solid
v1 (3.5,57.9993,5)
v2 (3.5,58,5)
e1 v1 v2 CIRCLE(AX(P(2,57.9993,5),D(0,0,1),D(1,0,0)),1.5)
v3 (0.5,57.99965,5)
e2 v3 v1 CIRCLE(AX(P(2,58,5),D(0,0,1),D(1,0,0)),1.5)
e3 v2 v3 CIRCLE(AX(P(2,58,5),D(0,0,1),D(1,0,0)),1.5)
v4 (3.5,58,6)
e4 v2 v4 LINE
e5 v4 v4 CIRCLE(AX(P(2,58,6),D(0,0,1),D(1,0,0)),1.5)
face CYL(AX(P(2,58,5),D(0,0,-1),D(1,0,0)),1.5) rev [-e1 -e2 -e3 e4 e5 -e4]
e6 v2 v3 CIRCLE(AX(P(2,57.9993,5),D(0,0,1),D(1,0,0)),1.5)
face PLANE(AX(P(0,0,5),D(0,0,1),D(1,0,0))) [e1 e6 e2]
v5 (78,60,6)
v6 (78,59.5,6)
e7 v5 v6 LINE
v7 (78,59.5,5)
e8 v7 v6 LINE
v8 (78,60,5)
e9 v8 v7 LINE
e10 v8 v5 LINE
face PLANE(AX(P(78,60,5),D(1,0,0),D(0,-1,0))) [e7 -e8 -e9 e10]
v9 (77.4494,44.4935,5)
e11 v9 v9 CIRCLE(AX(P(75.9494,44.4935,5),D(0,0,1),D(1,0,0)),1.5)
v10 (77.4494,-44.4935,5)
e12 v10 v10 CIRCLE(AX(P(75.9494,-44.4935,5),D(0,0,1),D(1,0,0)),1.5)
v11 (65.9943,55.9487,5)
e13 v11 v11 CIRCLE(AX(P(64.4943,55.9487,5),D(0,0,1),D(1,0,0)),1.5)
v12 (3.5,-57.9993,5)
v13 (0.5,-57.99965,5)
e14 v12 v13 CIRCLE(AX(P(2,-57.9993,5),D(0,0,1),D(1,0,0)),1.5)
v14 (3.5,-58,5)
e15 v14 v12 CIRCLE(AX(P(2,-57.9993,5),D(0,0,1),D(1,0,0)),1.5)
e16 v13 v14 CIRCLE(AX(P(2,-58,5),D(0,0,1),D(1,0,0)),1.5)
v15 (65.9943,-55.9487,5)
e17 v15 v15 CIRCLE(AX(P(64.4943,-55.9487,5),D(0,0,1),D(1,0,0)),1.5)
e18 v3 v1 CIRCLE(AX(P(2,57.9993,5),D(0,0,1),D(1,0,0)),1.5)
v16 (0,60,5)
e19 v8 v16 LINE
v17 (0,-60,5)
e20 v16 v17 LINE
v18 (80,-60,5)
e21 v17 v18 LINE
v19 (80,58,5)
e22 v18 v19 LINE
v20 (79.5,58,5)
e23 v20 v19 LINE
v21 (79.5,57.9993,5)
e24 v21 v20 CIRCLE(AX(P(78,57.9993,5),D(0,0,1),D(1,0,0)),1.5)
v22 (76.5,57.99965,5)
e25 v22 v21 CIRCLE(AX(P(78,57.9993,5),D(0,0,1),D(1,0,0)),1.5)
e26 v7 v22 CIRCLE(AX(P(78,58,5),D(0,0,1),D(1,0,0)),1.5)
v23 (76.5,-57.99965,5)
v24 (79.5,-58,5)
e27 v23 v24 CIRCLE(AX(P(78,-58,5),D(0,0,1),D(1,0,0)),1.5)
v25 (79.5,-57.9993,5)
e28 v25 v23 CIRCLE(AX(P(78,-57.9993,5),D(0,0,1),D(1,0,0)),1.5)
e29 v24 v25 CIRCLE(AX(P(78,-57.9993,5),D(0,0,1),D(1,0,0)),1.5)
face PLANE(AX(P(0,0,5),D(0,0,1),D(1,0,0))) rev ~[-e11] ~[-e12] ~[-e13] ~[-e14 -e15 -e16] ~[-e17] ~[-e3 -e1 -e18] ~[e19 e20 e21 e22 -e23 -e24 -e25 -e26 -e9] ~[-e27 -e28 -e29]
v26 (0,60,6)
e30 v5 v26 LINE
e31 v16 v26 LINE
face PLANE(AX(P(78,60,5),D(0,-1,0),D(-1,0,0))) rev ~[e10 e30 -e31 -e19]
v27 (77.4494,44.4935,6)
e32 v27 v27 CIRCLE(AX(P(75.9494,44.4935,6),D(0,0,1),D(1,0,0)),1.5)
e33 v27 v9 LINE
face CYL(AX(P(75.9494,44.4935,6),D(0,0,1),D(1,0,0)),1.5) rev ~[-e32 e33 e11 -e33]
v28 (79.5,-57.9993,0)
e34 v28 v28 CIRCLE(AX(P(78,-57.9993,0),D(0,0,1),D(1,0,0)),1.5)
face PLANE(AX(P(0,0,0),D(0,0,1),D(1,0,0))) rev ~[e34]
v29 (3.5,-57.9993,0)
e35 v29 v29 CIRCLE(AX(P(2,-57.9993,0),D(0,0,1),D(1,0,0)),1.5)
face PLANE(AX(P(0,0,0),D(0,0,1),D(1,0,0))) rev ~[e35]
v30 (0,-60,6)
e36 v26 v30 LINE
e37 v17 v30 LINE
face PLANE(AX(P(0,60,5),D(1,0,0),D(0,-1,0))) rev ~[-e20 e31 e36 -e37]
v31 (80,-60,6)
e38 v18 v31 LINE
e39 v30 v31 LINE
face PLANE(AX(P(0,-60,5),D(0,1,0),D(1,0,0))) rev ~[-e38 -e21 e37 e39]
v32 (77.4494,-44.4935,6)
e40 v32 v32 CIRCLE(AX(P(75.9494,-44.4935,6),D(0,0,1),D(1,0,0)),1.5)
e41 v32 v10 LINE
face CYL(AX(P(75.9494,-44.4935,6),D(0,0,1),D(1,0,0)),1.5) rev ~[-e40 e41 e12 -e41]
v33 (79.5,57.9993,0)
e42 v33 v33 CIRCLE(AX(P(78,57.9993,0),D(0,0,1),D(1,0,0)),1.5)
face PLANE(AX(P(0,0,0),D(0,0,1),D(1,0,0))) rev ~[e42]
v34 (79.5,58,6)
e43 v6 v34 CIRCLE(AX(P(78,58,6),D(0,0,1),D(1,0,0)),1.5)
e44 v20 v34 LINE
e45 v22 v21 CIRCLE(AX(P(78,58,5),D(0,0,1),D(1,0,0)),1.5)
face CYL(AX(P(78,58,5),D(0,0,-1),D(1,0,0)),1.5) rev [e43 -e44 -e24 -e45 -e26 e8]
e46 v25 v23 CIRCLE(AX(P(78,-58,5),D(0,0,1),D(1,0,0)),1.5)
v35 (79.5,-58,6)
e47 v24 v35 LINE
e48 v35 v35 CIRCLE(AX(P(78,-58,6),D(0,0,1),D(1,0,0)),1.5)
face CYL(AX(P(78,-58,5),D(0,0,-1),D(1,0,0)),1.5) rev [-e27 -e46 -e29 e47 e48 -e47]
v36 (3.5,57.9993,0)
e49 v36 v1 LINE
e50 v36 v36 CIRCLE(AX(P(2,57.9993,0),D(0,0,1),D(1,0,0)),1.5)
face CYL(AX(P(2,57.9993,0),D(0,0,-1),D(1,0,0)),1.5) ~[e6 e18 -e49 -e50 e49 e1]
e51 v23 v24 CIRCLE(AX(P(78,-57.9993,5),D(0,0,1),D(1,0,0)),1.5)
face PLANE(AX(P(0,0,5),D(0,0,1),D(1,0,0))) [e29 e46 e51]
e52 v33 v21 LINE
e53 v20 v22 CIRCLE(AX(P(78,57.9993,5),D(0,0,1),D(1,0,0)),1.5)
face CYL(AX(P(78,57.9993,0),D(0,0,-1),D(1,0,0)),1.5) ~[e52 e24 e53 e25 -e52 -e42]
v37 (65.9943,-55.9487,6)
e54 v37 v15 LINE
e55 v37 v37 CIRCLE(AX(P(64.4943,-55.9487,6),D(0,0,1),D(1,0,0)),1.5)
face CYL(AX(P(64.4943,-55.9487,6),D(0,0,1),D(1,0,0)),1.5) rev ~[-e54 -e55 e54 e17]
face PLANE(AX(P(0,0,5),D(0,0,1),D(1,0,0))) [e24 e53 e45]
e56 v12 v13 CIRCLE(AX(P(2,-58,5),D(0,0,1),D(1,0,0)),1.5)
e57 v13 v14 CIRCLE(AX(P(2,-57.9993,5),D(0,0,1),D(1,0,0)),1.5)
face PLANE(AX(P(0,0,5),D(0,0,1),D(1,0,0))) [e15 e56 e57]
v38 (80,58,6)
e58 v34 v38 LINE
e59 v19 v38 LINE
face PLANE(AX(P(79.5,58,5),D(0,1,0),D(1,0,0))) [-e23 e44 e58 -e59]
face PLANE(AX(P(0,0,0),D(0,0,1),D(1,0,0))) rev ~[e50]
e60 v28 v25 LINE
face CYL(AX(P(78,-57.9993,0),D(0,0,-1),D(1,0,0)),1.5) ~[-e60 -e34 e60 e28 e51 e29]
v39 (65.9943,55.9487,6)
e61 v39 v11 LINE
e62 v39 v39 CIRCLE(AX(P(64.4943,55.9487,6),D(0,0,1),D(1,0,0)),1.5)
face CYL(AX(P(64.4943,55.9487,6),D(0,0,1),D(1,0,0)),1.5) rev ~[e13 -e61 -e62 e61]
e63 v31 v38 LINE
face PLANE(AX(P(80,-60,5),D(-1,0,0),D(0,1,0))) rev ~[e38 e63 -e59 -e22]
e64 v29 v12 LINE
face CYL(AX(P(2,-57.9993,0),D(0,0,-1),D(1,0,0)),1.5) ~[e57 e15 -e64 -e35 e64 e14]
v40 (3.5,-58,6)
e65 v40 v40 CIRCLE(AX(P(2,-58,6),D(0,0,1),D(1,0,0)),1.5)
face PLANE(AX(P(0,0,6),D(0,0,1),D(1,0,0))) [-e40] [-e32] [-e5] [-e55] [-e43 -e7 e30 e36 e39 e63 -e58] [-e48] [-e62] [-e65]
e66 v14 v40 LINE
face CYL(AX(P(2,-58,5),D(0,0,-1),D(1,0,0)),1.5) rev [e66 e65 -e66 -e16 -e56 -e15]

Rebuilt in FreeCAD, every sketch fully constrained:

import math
import FreeCAD as App
import Part
import Sketcher
Q = App.Units.Quantity

doc = App.newDocument("Part")
body = doc.addObject("PartDesign::Body", "Body")
body.AllowCompound = True

# Sketch on XY plane
sketch1 = body.newObject("Sketcher::SketchObject", "Sketch")
sketch1.AttachmentSupport = (doc.getObject("XY_Plane"), [""])
sketch1.MapMode = "FlatFace"
sketch1.addGeometry(Part.Circle(App.Vector(78, 57.9993, 0), App.Vector(0, 0, 1), 1.5), False)
sketch1.addGeometry(Part.Circle(App.Vector(78, -57.9993, 0), App.Vector(0, 0, 1), 1.5), False)
sketch1.addGeometry(Part.Circle(App.Vector(2, 57.9993, 0), App.Vector(0, 0, 1), 1.5), False)
sketch1.addGeometry(Part.Circle(App.Vector(2, -57.9993, 0), App.Vector(0, 0, 1), 1.5), False)
sketch1.addConstraint(Sketcher.Constraint("Equal", 0, 1))
sketch1.addConstraint(Sketcher.Constraint("Equal", 1, 2))
sketch1.addConstraint(Sketcher.Constraint("Equal", 2, 3))
sketch1.addConstraint(Sketcher.Constraint("Symmetric", 0, 3, 1, 3, -1))
sketch1.addConstraint(Sketcher.Constraint("Symmetric", 2, 3, 3, 3, -1))
sketch1.addConstraint(Sketcher.Constraint("Horizontal", 0, 3, 2, 3))
sketch1.addConstraint(Sketcher.Constraint("Diameter", 0, Q("3 mm")))
sketch1.addConstraint(Sketcher.Constraint("DistanceX", -1, 1, 0, 3, Q("78 mm")))
sketch1.addConstraint(Sketcher.Constraint("DistanceX", -1, 1, 2, 3, Q("2 mm")))
sketch1.addConstraint(Sketcher.Constraint("DistanceY", -1, 1, 0, 3, Q("57.9993 mm")))
pad1 = body.newObject("PartDesign::Pad", "Pad")
pad1.Profile = sketch1
pad1.Length = 5

# Sketch on XY plane
sketch2 = body.newObject("Sketcher::SketchObject", "Sketch001")
sketch2.AttachmentSupport = (doc.getObject("XY_Plane"), [""])
sketch2.MapMode = "FlatFace"
sketch2.AttachmentOffset = App.Placement(App.Vector(0, 0, 5), App.Rotation())
sketch2.addGeometry(Part.LineSegment(App.Vector(78, 59.5, 0), App.Vector(78, 60, 0)), False)
sketch2.addGeometry(Part.LineSegment(App.Vector(78, 60, 0), App.Vector(0, 60, 0)), False)
sketch2.addGeometry(Part.LineSegment(App.Vector(0, 60, 0), App.Vector(0, -60, 0)), False)
sketch2.addGeometry(Part.LineSegment(App.Vector(0, -60, 0), App.Vector(80, -60, 0)), False)
sketch2.addGeometry(Part.LineSegment(App.Vector(80, -60, 0), App.Vector(80, 58, 0)), False)
sketch2.addGeometry(Part.LineSegment(App.Vector(80, 58, 0), App.Vector(79.5, 58, 0)), False)
sketch2.addGeometry(Part.ArcOfCircle(Part.Circle(App.Vector(78, 58, 0), App.Vector(0, 0, 1), 1.5), math.radians(90), math.radians(360)), False)
sketch2.addGeometry(Part.Circle(App.Vector(2, -58, 0), App.Vector(0, 0, 1), 1.5), False)
sketch2.addGeometry(Part.Circle(App.Vector(78, -58, 0), App.Vector(0, 0, 1), 1.5), False)
sketch2.addGeometry(Part.Circle(App.Vector(2, 58, 0), App.Vector(0, 0, 1), 1.5), False)
sketch2.addConstraint(Sketcher.Constraint("Coincident", 0, 2, 1, 1))
sketch2.addConstraint(Sketcher.Constraint("Coincident", 1, 2, 2, 1))
sketch2.addConstraint(Sketcher.Constraint("Coincident", 2, 2, 3, 1))
sketch2.addConstraint(Sketcher.Constraint("Coincident", 3, 2, 4, 1))
sketch2.addConstraint(Sketcher.Constraint("Coincident", 4, 2, 5, 1))
sketch2.addConstraint(Sketcher.Constraint("Coincident", 5, 2, 6, 2))
sketch2.addConstraint(Sketcher.Constraint("Coincident", 6, 1, 0, 1))
sketch2.addConstraint(Sketcher.Constraint("Vertical", 0))
sketch2.addConstraint(Sketcher.Constraint("Horizontal", 1))
sketch2.addConstraint(Sketcher.Constraint("Vertical", 2))
sketch2.addConstraint(Sketcher.Constraint("Horizontal", 3))
sketch2.addConstraint(Sketcher.Constraint("Vertical", 4))
sketch2.addConstraint(Sketcher.Constraint("Horizontal", 5))
sketch2.addConstraint(Sketcher.Constraint("Equal", 6, 7))
sketch2.addConstraint(Sketcher.Constraint("Equal", 7, 8))
sketch2.addConstraint(Sketcher.Constraint("Equal", 8, 9))
sketch2.addConstraint(Sketcher.Constraint("Symmetric", 1, 2, 2, 2, -1, 1))
sketch2.addConstraint(Sketcher.Constraint("Symmetric", 6, 3, 8, 3, -1))
sketch2.addConstraint(Sketcher.Constraint("Symmetric", 7, 3, 9, 3, -1))
sketch2.addConstraint(Sketcher.Constraint("Horizontal", 7, 3, 8, 3))
sketch2.addConstraint(Sketcher.Constraint("Horizontal", 9, 3, 4, 2))
sketch2.addConstraint(Sketcher.Constraint("Vertical", 8, 3, 0, 2))
sketch2.addConstraint(Sketcher.Constraint("Equal", 5, 0))
sketch2.addConstraint(Sketcher.Constraint("Diameter", 7, Q("3 mm")))
sketch2.addConstraint(Sketcher.Constraint("DistanceY", 2, 2, 2, 1, Q("120 mm")))
sketch2.addConstraint(Sketcher.Constraint("DistanceX", -1, 1, 7, 3, Q("2 mm")))
sketch2.addConstraint(Sketcher.Constraint("DistanceY", 6, 3, 0, 2, Q("2 mm")))
sketch2.addConstraint(Sketcher.Constraint("DistanceX", 1, 2, 1, 1, Q("78 mm")))
pad2 = body.newObject("PartDesign::Pad", "Pad001")
pad2.Profile = sketch2
pad2.Length = 1

# Sketch on XY plane
sketch3 = body.newObject("Sketcher::SketchObject", "Sketch002")
sketch3.AttachmentSupport = (doc.getObject("XY_Plane"), [""])
sketch3.MapMode = "FlatFace"
sketch3.AttachmentOffset = App.Placement(App.Vector(0, 0, 6), App.Rotation())
sketch3.addGeometry(Part.Circle(App.Vector(64.4943, 55.9487, 0), App.Vector(0, 0, 1), 1.5), False)
sketch3.addGeometry(Part.Circle(App.Vector(75.9494, 44.4935, 0), App.Vector(0, 0, 1), 1.5), False)
sketch3.addGeometry(Part.Circle(App.Vector(64.4943, -55.9487, 0), App.Vector(0, 0, 1), 1.5), False)
sketch3.addGeometry(Part.Circle(App.Vector(75.9494, -44.4935, 0), App.Vector(0, 0, 1), 1.5), False)
sketch3.addConstraint(Sketcher.Constraint("Equal", 0, 1))
sketch3.addConstraint(Sketcher.Constraint("Equal", 1, 2))
sketch3.addConstraint(Sketcher.Constraint("Equal", 2, 3))
sketch3.addConstraint(Sketcher.Constraint("Symmetric", 0, 3, 2, 3, -1))
sketch3.addConstraint(Sketcher.Constraint("Symmetric", 1, 3, 3, 3, -1))
sketch3.addConstraint(Sketcher.Constraint("Diameter", 0, Q("3 mm")))
sketch3.addConstraint(Sketcher.Constraint("DistanceX", 0, 3, 1, 3, Q("11.455 mm")))
sketch3.addConstraint(Sketcher.Constraint("DistanceY", 3, 3, 1, 3, Q("88.987 mm")))
sketch3.addConstraint(Sketcher.Constraint("DistanceX", -1, 1, 0, 3, Q("64.4943 mm")))
sketch3.addConstraint(Sketcher.Constraint("DistanceY", -1, 1, 0, 3, Q("55.9487 mm")))
pocket1 = body.newObject("PartDesign::Pocket", "Pocket")
pocket1.Profile = sketch3
pocket1.Length = 1

doc.recompute()
